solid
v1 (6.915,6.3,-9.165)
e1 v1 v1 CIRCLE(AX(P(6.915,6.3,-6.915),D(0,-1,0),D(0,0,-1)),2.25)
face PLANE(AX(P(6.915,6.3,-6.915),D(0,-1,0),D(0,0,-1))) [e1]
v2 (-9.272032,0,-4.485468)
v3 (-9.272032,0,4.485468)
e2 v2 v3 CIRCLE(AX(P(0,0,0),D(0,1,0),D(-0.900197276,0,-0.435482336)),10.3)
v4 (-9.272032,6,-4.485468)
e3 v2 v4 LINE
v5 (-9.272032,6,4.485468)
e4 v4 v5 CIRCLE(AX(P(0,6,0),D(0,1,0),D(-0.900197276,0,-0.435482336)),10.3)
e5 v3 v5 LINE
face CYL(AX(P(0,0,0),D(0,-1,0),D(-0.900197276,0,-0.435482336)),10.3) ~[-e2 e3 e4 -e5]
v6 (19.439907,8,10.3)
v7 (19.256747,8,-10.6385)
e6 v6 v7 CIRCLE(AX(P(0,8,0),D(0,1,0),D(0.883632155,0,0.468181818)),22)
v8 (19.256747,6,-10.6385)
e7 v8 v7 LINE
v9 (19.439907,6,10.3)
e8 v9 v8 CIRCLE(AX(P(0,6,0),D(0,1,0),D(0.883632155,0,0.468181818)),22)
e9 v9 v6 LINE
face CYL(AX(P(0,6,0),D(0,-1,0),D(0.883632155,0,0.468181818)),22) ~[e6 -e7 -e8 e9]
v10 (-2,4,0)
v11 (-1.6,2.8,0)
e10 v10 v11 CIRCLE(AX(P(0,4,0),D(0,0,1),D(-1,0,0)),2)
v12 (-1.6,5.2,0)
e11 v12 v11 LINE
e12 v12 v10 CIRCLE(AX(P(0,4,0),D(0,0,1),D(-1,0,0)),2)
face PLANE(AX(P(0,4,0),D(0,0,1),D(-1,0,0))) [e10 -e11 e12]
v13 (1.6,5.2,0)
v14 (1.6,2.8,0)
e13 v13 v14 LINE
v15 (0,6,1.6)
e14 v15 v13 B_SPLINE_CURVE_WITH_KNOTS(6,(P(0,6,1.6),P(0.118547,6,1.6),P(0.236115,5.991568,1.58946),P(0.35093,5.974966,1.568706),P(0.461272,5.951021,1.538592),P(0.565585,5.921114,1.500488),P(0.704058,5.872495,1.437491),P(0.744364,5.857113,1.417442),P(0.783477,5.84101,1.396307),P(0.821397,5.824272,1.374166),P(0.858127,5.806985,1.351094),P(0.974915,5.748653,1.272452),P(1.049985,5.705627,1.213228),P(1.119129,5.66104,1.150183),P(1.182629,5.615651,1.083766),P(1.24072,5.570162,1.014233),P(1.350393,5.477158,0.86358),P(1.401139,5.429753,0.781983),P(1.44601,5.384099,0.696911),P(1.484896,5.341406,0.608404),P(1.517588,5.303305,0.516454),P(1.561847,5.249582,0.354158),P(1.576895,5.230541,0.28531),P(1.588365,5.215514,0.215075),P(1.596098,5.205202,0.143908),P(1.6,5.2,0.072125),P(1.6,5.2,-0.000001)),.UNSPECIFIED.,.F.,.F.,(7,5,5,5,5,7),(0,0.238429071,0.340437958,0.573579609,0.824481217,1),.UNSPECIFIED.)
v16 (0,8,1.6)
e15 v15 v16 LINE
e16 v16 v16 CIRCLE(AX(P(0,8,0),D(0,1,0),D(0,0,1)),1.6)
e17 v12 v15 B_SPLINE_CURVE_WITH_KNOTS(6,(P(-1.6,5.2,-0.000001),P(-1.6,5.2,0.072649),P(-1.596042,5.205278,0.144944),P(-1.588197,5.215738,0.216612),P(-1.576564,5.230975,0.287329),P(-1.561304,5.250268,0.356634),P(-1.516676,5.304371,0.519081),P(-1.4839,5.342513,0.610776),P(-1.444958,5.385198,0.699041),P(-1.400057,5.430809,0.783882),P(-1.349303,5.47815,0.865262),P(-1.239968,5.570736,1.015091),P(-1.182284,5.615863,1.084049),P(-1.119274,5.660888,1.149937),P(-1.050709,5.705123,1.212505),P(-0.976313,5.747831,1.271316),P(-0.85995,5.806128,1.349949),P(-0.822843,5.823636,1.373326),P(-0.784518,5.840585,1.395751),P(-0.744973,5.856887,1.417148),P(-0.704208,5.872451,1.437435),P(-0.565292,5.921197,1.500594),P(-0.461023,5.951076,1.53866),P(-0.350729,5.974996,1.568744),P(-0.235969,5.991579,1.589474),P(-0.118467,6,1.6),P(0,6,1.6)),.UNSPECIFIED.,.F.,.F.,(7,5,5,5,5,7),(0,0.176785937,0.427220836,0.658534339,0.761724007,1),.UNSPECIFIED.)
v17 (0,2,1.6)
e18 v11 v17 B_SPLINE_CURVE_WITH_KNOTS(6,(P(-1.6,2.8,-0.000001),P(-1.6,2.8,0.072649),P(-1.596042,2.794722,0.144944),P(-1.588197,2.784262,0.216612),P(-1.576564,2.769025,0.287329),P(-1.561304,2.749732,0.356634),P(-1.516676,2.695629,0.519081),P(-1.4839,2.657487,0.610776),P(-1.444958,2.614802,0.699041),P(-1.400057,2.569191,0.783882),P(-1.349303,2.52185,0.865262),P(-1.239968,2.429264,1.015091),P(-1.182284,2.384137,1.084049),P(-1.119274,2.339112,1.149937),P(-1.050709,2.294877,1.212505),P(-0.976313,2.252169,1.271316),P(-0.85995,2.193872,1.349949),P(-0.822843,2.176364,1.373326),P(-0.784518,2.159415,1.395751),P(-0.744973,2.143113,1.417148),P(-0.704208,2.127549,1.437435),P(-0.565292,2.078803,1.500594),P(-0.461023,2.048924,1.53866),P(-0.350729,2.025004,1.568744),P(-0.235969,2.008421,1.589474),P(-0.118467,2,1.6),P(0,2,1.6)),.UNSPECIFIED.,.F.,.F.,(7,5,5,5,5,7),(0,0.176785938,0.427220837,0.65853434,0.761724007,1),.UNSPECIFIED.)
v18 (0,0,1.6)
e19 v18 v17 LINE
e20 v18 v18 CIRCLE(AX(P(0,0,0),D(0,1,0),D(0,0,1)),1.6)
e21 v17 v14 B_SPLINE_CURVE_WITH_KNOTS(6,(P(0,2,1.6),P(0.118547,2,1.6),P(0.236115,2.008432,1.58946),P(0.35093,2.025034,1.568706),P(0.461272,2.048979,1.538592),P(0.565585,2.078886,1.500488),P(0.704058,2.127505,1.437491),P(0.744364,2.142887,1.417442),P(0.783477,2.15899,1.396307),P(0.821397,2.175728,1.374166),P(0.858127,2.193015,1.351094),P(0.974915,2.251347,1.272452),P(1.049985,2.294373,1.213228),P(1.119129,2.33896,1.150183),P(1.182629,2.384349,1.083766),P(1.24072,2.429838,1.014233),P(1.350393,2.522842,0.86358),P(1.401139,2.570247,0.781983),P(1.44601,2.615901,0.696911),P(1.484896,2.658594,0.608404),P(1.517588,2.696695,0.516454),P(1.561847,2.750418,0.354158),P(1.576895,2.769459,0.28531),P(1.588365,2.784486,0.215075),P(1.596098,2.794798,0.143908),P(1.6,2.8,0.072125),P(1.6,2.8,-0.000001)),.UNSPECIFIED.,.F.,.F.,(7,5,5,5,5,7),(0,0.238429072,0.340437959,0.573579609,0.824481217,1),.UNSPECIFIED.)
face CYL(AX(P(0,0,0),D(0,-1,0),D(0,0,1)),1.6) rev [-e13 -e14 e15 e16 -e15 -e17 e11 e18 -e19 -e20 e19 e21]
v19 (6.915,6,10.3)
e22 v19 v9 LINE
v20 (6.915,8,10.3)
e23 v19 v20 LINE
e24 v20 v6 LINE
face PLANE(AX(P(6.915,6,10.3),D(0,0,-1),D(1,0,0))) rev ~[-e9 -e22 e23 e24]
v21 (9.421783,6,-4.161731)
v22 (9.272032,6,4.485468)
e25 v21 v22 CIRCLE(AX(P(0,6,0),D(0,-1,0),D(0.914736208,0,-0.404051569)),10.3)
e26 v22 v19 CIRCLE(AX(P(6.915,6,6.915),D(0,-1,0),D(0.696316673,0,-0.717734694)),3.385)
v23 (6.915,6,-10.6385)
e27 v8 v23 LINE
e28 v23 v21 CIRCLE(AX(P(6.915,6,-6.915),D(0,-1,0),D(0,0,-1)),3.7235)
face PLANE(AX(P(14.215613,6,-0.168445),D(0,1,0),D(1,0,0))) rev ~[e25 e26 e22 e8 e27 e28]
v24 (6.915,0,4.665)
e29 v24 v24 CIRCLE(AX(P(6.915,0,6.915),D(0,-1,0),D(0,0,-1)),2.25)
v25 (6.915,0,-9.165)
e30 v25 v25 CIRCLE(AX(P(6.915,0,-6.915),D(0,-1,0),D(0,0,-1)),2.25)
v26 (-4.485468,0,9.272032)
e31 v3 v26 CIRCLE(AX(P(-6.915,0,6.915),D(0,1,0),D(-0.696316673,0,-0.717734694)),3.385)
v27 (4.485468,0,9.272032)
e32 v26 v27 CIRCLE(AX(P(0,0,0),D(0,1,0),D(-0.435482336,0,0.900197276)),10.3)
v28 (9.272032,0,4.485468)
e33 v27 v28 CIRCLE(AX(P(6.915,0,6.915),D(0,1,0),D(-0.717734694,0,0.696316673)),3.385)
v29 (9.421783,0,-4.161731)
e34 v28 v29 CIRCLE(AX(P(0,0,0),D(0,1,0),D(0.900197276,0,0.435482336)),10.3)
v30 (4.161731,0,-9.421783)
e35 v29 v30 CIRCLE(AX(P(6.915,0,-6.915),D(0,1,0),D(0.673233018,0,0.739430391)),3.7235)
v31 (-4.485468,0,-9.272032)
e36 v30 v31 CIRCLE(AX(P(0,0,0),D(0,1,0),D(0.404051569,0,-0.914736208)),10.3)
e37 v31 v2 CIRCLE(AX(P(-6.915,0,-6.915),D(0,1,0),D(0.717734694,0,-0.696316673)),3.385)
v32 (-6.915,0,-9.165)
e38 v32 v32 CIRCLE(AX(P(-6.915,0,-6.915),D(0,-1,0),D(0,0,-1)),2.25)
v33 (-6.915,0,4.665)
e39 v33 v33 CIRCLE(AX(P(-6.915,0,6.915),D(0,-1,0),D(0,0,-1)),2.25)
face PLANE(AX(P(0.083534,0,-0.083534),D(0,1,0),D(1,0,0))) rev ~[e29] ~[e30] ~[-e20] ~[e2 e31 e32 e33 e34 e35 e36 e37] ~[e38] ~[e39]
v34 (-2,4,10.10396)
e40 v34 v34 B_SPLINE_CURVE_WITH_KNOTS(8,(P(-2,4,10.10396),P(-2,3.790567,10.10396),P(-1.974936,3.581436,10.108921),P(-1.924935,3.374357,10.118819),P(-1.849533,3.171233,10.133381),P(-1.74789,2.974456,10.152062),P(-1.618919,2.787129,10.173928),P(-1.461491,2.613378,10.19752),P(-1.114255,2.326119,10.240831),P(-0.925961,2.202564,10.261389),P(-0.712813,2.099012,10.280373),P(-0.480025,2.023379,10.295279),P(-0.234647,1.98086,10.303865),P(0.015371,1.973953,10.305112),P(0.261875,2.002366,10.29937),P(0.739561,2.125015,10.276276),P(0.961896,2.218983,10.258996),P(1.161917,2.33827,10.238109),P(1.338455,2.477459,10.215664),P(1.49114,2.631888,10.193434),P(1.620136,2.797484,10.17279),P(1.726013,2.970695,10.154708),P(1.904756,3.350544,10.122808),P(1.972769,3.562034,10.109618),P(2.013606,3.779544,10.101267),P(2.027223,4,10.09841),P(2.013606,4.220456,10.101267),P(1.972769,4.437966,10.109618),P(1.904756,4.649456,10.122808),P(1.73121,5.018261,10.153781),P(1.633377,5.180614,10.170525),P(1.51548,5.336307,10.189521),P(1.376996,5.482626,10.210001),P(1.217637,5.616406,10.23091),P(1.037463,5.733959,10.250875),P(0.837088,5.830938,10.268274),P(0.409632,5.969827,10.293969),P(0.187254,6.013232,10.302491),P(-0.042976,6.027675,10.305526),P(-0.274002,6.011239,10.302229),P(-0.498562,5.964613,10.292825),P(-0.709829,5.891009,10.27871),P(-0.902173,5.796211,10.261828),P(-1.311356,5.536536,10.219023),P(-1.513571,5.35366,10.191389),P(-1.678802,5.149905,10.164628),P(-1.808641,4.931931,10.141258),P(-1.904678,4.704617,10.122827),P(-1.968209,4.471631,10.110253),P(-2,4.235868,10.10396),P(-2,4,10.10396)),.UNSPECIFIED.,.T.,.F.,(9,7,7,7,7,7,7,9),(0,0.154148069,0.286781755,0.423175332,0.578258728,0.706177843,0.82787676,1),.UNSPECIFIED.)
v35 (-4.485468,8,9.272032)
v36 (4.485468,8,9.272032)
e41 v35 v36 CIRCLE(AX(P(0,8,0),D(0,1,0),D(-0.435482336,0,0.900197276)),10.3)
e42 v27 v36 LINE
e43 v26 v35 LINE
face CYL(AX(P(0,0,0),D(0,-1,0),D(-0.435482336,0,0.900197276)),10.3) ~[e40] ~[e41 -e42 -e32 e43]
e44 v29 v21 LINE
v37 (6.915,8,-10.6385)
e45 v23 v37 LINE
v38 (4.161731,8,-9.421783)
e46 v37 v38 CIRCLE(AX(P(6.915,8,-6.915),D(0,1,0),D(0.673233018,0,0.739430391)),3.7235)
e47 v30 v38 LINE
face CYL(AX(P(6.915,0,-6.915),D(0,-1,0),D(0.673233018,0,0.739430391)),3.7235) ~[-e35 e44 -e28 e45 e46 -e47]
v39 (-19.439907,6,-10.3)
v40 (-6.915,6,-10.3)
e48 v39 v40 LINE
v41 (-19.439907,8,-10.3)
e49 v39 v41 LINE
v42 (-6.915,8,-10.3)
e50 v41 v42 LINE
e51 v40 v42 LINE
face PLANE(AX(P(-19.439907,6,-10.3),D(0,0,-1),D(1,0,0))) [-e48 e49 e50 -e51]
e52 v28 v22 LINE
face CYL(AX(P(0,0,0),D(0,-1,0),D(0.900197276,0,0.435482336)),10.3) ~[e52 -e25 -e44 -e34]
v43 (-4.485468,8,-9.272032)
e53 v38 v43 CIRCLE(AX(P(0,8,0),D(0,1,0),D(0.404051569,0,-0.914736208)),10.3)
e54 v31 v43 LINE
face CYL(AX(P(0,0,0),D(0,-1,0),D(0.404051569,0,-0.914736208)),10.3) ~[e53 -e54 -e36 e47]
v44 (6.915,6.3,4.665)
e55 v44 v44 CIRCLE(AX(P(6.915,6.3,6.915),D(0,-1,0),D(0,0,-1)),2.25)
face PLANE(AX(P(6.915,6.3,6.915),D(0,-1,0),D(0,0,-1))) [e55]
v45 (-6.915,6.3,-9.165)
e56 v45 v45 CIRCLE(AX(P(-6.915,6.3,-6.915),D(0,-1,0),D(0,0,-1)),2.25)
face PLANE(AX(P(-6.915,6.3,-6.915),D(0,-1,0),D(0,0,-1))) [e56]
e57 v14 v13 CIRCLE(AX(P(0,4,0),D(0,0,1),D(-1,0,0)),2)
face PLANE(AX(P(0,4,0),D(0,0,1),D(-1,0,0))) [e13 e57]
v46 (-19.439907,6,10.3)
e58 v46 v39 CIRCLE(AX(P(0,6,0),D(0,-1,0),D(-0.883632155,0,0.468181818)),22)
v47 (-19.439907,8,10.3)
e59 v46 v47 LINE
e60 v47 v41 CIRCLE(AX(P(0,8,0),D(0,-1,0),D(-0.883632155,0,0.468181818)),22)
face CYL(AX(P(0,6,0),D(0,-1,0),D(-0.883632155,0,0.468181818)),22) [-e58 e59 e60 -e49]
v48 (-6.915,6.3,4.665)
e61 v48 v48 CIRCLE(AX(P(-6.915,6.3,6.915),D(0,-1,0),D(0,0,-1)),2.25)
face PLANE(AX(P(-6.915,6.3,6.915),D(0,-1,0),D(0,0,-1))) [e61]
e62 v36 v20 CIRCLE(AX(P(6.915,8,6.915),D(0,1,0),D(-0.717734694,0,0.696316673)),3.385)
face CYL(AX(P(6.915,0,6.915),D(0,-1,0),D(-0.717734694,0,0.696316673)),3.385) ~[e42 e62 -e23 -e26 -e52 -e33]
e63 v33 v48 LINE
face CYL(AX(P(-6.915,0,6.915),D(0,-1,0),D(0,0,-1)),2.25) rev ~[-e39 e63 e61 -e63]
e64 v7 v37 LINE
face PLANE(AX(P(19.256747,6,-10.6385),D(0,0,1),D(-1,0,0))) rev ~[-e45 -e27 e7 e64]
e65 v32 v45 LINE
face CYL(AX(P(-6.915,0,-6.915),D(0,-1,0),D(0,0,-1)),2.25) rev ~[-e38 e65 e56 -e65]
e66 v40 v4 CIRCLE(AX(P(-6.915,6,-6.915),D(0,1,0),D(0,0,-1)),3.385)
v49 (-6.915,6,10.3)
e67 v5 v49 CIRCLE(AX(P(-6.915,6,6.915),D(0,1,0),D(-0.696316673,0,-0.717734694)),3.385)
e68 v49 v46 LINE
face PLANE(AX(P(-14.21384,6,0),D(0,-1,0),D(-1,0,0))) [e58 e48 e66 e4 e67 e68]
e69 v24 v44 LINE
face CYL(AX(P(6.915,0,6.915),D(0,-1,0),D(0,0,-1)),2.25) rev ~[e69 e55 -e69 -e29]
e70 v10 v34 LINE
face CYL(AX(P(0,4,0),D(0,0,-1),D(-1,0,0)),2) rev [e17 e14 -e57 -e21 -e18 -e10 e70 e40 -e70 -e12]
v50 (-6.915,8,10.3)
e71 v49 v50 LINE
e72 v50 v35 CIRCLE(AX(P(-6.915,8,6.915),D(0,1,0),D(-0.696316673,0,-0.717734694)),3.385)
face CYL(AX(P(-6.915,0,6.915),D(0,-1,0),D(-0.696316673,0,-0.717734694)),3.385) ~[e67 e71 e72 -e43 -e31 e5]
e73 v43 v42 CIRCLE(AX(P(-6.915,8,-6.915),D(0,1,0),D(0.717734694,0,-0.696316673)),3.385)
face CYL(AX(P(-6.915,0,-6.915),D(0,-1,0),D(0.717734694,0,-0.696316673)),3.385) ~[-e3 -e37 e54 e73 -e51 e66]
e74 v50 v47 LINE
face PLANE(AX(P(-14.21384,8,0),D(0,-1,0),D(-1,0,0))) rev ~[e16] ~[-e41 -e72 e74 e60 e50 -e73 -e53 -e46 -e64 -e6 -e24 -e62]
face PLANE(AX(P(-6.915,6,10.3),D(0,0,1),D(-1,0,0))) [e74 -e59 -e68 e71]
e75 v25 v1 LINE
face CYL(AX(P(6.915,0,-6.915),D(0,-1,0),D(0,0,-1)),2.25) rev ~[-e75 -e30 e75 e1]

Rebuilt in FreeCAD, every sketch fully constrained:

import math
import FreeCAD as App
import Part
import Sketcher

V = App.Vector
Q = App.Units.Quantity

doc = App.newDocument("Part")
body = doc.addObject("PartDesign::Body", "Body")

# Sketch on XZ plane
sketch1 = body.newObject("Sketcher::SketchObject", "Sketch")
sketch1.AttachmentSupport = (doc.getObject("XZ_Plane"), [""])
sketch1.MapMode = "FlatFace"
sketch1.addGeometry([
    Part.ArcOfCircle(Part.Circle(V(-6.9, 6.9, 0), V(0, 0, 1), 3.4), math.radians(44), math.radians(226)),  # 0
    Part.ArcOfCircle(Part.Circle(V(0, 0, 0), V(0, 0, 1), 10.3), math.radians(64), math.radians(116)),  # 1
    Part.ArcOfCircle(Part.Circle(V(6.9, 6.9, 0), V(0, 0, 1), 3.4), math.radians(-46), math.radians(136)),  # 2
    Part.ArcOfCircle(Part.Circle(V(0, 0, 0), V(0, 0, 1), 10.3), math.radians(-24), math.radians(26)),  # 3
    Part.ArcOfCircle(Part.Circle(V(6.9, -6.9, 0), V(0, 0, 1), 3.7), math.radians(-138), math.radians(48)),  # 4
    Part.ArcOfCircle(Part.Circle(V(0, 0, 0), V(0, 0, 1), 10.3), math.radians(-116), math.radians(-66)),  # 5
    Part.ArcOfCircle(Part.Circle(V(-6.9, -6.9, 0), V(0, 0, 1), 3.4), math.radians(134), math.radians(316)),  # 6
    Part.ArcOfCircle(Part.Circle(V(0, 0, 0), V(0, 0, 1), 10.3), math.radians(154), math.radians(206)),  # 7
    Part.Circle(V(0, 0, 0), V(0, 0, 1), 1.6),  # 8
], False)
sketch1.addConstraint([
    Sketcher.Constraint("Coincident", 0, 1, 1, 2),
    Sketcher.Constraint("Coincident", 1, 1, 2, 2),
    Sketcher.Constraint("Coincident", 2, 1, 3, 2),
    Sketcher.Constraint("Coincident", 3, 1, 4, 2),
    Sketcher.Constraint("Coincident", 4, 1, 5, 2),
    Sketcher.Constraint("Coincident", 5, 1, 6, 2),
    Sketcher.Constraint("Coincident", 6, 1, 7, 2),
    Sketcher.Constraint("Coincident", 7, 1, 0, 2),
    Sketcher.Constraint("Coincident", 1, 3, -1, 1),
    Sketcher.Constraint("Coincident", 3, 3, -1, 1),
    Sketcher.Constraint("Coincident", 5, 3, -1, 1),
    Sketcher.Constraint("Coincident", 7, 3, -1, 1),
    Sketcher.Constraint("Coincident", 8, 3, -1, 1),
    Sketcher.Constraint("Equal", 0, 2),
    Sketcher.Constraint("Equal", 1, 3),
    Sketcher.Constraint("Equal", 3, 5),
    Sketcher.Constraint("Equal", 2, 6),
    Sketcher.Constraint("Equal", 5, 7),
    Sketcher.Constraint("Symmetric", 0, 3, 4, 3, -1, 1),
    Sketcher.Constraint("Symmetric", 2, 3, 6, 3, -1, 1),
    Sketcher.Constraint("Symmetric", 0, 3, 2, 3, -2),
    Sketcher.Constraint("Diameter", 8, Q("3.2 mm")),
    Sketcher.Constraint("Radius", 1, Q("10.3 mm")),
    Sketcher.Constraint("Radius", 0, Q("3.385 mm")),
    Sketcher.Constraint("Radius", 4, Q("3.7235 mm")),
    Sketcher.Constraint("DistanceX", 0, 3, 2, 3, Q("13.83 mm")),
    Sketcher.Constraint("DistanceY", 4, 3, 2, 3, Q("13.83 mm")),
])
pad1 = body.newObject("PartDesign::Pad", "Pad")
pad1.Profile = sketch1
pad1.Length = 8
pad1.Reversed = True

# Sketch on XY plane
sketch2 = body.newObject("Sketcher::SketchObject", "Sketch001")
sketch2.AttachmentSupport = (doc.getObject("XY_Plane"), [""])
sketch2.MapMode = "FlatFace"
sketch2.addGeometry(Part.Circle(V(0, 4, 0), V(0, 0, 1), 2), False)
sketch2.addConstraint([
    Sketcher.Constraint("PointOnObject", 0, 3, -2),
    Sketcher.Constraint("Diameter", 0, Q("4 mm")),
    Sketcher.Constraint("DistanceY", -1, 1, 0, 3, Q("4 mm")),
])
pocket1 = body.newObject("PartDesign::Pocket", "Pocket")
pocket1.Profile = sketch2
pocket1.Length = 14.5
pocket1.Reversed = True

# Sketch on XZ plane
sketch3 = body.newObject("Sketcher::SketchObject", "Sketch002")
sketch3.AttachmentSupport = (doc.getObject("XZ_Plane"), [""])
sketch3.MapMode = "FlatFace"
sketch3.AttachmentOffset = App.Placement(V(0, 0, -6), App.Rotation())
sketch3.addGeometry([
    Part.LineSegment(V(-6.9, -10.3, 0), V(-19.4, -10.3, 0)),  # 0
    Part.ArcOfCircle(Part.Circle(V(0, 0, 0), V(0, 0, 1), 22), math.radians(152), math.radians(208)),  # 1
    Part.LineSegment(V(-19.4, 10.3, 0), V(-6.9, 10.3, 0)),  # 2
    Part.ArcOfCircle(Part.Circle(V(-6.9, 6.9, 0), V(0, 0, 1), 3.4), math.radians(90), math.radians(226)),  # 3
    Part.ArcOfCircle(Part.Circle(V(0, 0, 0), V(0, 0, 1), 10.3), math.radians(154), math.radians(206)),  # 4
    Part.ArcOfCircle(Part.Circle(V(-6.9, -6.9, 0), V(0, 0, 1), 3.4), math.radians(134), math.radians(270)),  # 5
    Part.LineSegment(V(19.3, -10.6, 0), V(6.9, -10.6, 0)),  # 6
    Part.ArcOfCircle(Part.Circle(V(6.9, -6.9, 0), V(0, 0, 1), 3.7), math.radians(-90), math.radians(48)),  # 7
    Part.ArcOfCircle(Part.Circle(V(0, 0, 0), V(0, 0, 1), 10.3), math.radians(-24), math.radians(26)),  # 8
    Part.ArcOfCircle(Part.Circle(V(6.9, 6.9, 0), V(0, 0, 1), 3.4), math.radians(-46), math.radians(90)),  # 9
    Part.LineSegment(V(6.9, 10.3, 0), V(19.4, 10.3, 0)),  # 10
    Part.ArcOfCircle(Part.Circle(V(0, 0, 0), V(0, 0, 1), 22), math.radians(-29), math.radians(28)),  # 11
], False)
sketch3.addConstraint([
    Sketcher.Constraint("Coincident", 0, 2, 1, 2),
    Sketcher.Constraint("Coincident", 1, 1, 2, 1),
    Sketcher.Constraint("Tangent", 2, 2, 3, 1),
    Sketcher.Constraint("Coincident", 3, 2, 4, 1),
    Sketcher.Constraint("Coincident", 4, 2, 5, 1),
    Sketcher.Constraint("Tangent", 5, 2, 0, 1),
    Sketcher.Constraint("Tangent", 6, 2, 7, 1),
    Sketcher.Constraint("Coincident", 7, 2, 8, 1),
    Sketcher.Constraint("Coincident", 8, 2, 9, 1),
    Sketcher.Constraint("Tangent", 9, 2, 10, 1),
    Sketcher.Constraint("Coincident", 10, 2, 11, 2),
    Sketcher.Constraint("Coincident", 11, 1, 6, 1),
    Sketcher.Constraint("Horizontal", 0),
    Sketcher.Constraint("Horizontal", 2),
    Sketcher.Constraint("Horizontal", 6),
    Sketcher.Constraint("Horizontal", 10),
    Sketcher.Constraint("Coincident", 1, 3, -1, 1),
    Sketcher.Constraint("Coincident", 4, 3, -1, 1),
    Sketcher.Constraint("Coincident", 8, 3, -1, 1),
    Sketcher.Constraint("Coincident", 11, 3, -1, 1),
    Sketcher.Constraint("Equal", 3, 5),
    Sketcher.Constraint("Equal", 4, 8),
    Sketcher.Constraint("Equal", 5, 9),
    Sketcher.Constraint("Equal", 1, 11),
    Sketcher.Constraint("Symmetric", 3, 3, 7, 3, -1, 1),
    Sketcher.Constraint("Symmetric", 5, 3, 9, 3, -1, 1),
    Sketcher.Constraint("Symmetric", 5, 3, 7, 3, -2),
    Sketcher.Constraint("Radius", 1, Q("22 mm")),
    Sketcher.Constraint("Radius", 4, Q("10.3 mm")),
    Sketcher.Constraint("Radius", 3, Q("3.385 mm")),
    Sketcher.Constraint("DistanceY", 0, 2, -1, 1, Q("10.3 mm")),
    Sketcher.Constraint("Radius", 7, Q("3.7235 mm")),
    Sketcher.Constraint("DistanceX", 5, 3, 7, 3, Q("13.83 mm")),
])
pad2 = body.newObject("PartDesign::Pad", "Pad001")
pad2.Profile = sketch3
pad2.Length = 2
pad2.Reversed = True

# Sketch on XZ plane
sketch4 = body.newObject("Sketcher::SketchObject", "Sketch003")
sketch4.AttachmentSupport = (doc.getObject("XZ_Plane"), [""])
sketch4.MapMode = "FlatFace"
sketch4.addGeometry([
    Part.Circle(V(-6.9, 6.9, 0), V(0, 0, 1), 2.2),
    Part.Circle(V(6.9, 6.9, 0), V(0, 0, 1), 2.2),
    Part.Circle(V(6.9, -6.9, 0), V(0, 0, 1), 2.2),
    Part.Circle(V(-6.9, -6.9, 0), V(0, 0, 1), 2.2),
], False)
sketch4.addConstraint([
    Sketcher.Constraint("Equal", 0, 1),
    Sketcher.Constraint("Equal", 1, 2),
    Sketcher.Constraint("Equal", 2, 3),
    Sketcher.Constraint("Symmetric", 0, 3, 2, 3, -1, 1),
    Sketcher.Constraint("Symmetric", 1, 3, 3, 3, -1, 1),
    Sketcher.Constraint("Symmetric", 0, 3, 1, 3, -2),
    Sketcher.Constraint("Diameter", 0, Q("4.5 mm")),
    Sketcher.Constraint("DistanceX", 0, 3, 1, 3, Q("13.83 mm")),
    Sketcher.Constraint("DistanceY", 2, 3, 1, 3, Q("13.83 mm")),
])
pocket2 = body.newObject("PartDesign::Pocket", "Pocket001")
pocket2.Profile = sketch4
pocket2.Length = 6.3

doc.recompute()
